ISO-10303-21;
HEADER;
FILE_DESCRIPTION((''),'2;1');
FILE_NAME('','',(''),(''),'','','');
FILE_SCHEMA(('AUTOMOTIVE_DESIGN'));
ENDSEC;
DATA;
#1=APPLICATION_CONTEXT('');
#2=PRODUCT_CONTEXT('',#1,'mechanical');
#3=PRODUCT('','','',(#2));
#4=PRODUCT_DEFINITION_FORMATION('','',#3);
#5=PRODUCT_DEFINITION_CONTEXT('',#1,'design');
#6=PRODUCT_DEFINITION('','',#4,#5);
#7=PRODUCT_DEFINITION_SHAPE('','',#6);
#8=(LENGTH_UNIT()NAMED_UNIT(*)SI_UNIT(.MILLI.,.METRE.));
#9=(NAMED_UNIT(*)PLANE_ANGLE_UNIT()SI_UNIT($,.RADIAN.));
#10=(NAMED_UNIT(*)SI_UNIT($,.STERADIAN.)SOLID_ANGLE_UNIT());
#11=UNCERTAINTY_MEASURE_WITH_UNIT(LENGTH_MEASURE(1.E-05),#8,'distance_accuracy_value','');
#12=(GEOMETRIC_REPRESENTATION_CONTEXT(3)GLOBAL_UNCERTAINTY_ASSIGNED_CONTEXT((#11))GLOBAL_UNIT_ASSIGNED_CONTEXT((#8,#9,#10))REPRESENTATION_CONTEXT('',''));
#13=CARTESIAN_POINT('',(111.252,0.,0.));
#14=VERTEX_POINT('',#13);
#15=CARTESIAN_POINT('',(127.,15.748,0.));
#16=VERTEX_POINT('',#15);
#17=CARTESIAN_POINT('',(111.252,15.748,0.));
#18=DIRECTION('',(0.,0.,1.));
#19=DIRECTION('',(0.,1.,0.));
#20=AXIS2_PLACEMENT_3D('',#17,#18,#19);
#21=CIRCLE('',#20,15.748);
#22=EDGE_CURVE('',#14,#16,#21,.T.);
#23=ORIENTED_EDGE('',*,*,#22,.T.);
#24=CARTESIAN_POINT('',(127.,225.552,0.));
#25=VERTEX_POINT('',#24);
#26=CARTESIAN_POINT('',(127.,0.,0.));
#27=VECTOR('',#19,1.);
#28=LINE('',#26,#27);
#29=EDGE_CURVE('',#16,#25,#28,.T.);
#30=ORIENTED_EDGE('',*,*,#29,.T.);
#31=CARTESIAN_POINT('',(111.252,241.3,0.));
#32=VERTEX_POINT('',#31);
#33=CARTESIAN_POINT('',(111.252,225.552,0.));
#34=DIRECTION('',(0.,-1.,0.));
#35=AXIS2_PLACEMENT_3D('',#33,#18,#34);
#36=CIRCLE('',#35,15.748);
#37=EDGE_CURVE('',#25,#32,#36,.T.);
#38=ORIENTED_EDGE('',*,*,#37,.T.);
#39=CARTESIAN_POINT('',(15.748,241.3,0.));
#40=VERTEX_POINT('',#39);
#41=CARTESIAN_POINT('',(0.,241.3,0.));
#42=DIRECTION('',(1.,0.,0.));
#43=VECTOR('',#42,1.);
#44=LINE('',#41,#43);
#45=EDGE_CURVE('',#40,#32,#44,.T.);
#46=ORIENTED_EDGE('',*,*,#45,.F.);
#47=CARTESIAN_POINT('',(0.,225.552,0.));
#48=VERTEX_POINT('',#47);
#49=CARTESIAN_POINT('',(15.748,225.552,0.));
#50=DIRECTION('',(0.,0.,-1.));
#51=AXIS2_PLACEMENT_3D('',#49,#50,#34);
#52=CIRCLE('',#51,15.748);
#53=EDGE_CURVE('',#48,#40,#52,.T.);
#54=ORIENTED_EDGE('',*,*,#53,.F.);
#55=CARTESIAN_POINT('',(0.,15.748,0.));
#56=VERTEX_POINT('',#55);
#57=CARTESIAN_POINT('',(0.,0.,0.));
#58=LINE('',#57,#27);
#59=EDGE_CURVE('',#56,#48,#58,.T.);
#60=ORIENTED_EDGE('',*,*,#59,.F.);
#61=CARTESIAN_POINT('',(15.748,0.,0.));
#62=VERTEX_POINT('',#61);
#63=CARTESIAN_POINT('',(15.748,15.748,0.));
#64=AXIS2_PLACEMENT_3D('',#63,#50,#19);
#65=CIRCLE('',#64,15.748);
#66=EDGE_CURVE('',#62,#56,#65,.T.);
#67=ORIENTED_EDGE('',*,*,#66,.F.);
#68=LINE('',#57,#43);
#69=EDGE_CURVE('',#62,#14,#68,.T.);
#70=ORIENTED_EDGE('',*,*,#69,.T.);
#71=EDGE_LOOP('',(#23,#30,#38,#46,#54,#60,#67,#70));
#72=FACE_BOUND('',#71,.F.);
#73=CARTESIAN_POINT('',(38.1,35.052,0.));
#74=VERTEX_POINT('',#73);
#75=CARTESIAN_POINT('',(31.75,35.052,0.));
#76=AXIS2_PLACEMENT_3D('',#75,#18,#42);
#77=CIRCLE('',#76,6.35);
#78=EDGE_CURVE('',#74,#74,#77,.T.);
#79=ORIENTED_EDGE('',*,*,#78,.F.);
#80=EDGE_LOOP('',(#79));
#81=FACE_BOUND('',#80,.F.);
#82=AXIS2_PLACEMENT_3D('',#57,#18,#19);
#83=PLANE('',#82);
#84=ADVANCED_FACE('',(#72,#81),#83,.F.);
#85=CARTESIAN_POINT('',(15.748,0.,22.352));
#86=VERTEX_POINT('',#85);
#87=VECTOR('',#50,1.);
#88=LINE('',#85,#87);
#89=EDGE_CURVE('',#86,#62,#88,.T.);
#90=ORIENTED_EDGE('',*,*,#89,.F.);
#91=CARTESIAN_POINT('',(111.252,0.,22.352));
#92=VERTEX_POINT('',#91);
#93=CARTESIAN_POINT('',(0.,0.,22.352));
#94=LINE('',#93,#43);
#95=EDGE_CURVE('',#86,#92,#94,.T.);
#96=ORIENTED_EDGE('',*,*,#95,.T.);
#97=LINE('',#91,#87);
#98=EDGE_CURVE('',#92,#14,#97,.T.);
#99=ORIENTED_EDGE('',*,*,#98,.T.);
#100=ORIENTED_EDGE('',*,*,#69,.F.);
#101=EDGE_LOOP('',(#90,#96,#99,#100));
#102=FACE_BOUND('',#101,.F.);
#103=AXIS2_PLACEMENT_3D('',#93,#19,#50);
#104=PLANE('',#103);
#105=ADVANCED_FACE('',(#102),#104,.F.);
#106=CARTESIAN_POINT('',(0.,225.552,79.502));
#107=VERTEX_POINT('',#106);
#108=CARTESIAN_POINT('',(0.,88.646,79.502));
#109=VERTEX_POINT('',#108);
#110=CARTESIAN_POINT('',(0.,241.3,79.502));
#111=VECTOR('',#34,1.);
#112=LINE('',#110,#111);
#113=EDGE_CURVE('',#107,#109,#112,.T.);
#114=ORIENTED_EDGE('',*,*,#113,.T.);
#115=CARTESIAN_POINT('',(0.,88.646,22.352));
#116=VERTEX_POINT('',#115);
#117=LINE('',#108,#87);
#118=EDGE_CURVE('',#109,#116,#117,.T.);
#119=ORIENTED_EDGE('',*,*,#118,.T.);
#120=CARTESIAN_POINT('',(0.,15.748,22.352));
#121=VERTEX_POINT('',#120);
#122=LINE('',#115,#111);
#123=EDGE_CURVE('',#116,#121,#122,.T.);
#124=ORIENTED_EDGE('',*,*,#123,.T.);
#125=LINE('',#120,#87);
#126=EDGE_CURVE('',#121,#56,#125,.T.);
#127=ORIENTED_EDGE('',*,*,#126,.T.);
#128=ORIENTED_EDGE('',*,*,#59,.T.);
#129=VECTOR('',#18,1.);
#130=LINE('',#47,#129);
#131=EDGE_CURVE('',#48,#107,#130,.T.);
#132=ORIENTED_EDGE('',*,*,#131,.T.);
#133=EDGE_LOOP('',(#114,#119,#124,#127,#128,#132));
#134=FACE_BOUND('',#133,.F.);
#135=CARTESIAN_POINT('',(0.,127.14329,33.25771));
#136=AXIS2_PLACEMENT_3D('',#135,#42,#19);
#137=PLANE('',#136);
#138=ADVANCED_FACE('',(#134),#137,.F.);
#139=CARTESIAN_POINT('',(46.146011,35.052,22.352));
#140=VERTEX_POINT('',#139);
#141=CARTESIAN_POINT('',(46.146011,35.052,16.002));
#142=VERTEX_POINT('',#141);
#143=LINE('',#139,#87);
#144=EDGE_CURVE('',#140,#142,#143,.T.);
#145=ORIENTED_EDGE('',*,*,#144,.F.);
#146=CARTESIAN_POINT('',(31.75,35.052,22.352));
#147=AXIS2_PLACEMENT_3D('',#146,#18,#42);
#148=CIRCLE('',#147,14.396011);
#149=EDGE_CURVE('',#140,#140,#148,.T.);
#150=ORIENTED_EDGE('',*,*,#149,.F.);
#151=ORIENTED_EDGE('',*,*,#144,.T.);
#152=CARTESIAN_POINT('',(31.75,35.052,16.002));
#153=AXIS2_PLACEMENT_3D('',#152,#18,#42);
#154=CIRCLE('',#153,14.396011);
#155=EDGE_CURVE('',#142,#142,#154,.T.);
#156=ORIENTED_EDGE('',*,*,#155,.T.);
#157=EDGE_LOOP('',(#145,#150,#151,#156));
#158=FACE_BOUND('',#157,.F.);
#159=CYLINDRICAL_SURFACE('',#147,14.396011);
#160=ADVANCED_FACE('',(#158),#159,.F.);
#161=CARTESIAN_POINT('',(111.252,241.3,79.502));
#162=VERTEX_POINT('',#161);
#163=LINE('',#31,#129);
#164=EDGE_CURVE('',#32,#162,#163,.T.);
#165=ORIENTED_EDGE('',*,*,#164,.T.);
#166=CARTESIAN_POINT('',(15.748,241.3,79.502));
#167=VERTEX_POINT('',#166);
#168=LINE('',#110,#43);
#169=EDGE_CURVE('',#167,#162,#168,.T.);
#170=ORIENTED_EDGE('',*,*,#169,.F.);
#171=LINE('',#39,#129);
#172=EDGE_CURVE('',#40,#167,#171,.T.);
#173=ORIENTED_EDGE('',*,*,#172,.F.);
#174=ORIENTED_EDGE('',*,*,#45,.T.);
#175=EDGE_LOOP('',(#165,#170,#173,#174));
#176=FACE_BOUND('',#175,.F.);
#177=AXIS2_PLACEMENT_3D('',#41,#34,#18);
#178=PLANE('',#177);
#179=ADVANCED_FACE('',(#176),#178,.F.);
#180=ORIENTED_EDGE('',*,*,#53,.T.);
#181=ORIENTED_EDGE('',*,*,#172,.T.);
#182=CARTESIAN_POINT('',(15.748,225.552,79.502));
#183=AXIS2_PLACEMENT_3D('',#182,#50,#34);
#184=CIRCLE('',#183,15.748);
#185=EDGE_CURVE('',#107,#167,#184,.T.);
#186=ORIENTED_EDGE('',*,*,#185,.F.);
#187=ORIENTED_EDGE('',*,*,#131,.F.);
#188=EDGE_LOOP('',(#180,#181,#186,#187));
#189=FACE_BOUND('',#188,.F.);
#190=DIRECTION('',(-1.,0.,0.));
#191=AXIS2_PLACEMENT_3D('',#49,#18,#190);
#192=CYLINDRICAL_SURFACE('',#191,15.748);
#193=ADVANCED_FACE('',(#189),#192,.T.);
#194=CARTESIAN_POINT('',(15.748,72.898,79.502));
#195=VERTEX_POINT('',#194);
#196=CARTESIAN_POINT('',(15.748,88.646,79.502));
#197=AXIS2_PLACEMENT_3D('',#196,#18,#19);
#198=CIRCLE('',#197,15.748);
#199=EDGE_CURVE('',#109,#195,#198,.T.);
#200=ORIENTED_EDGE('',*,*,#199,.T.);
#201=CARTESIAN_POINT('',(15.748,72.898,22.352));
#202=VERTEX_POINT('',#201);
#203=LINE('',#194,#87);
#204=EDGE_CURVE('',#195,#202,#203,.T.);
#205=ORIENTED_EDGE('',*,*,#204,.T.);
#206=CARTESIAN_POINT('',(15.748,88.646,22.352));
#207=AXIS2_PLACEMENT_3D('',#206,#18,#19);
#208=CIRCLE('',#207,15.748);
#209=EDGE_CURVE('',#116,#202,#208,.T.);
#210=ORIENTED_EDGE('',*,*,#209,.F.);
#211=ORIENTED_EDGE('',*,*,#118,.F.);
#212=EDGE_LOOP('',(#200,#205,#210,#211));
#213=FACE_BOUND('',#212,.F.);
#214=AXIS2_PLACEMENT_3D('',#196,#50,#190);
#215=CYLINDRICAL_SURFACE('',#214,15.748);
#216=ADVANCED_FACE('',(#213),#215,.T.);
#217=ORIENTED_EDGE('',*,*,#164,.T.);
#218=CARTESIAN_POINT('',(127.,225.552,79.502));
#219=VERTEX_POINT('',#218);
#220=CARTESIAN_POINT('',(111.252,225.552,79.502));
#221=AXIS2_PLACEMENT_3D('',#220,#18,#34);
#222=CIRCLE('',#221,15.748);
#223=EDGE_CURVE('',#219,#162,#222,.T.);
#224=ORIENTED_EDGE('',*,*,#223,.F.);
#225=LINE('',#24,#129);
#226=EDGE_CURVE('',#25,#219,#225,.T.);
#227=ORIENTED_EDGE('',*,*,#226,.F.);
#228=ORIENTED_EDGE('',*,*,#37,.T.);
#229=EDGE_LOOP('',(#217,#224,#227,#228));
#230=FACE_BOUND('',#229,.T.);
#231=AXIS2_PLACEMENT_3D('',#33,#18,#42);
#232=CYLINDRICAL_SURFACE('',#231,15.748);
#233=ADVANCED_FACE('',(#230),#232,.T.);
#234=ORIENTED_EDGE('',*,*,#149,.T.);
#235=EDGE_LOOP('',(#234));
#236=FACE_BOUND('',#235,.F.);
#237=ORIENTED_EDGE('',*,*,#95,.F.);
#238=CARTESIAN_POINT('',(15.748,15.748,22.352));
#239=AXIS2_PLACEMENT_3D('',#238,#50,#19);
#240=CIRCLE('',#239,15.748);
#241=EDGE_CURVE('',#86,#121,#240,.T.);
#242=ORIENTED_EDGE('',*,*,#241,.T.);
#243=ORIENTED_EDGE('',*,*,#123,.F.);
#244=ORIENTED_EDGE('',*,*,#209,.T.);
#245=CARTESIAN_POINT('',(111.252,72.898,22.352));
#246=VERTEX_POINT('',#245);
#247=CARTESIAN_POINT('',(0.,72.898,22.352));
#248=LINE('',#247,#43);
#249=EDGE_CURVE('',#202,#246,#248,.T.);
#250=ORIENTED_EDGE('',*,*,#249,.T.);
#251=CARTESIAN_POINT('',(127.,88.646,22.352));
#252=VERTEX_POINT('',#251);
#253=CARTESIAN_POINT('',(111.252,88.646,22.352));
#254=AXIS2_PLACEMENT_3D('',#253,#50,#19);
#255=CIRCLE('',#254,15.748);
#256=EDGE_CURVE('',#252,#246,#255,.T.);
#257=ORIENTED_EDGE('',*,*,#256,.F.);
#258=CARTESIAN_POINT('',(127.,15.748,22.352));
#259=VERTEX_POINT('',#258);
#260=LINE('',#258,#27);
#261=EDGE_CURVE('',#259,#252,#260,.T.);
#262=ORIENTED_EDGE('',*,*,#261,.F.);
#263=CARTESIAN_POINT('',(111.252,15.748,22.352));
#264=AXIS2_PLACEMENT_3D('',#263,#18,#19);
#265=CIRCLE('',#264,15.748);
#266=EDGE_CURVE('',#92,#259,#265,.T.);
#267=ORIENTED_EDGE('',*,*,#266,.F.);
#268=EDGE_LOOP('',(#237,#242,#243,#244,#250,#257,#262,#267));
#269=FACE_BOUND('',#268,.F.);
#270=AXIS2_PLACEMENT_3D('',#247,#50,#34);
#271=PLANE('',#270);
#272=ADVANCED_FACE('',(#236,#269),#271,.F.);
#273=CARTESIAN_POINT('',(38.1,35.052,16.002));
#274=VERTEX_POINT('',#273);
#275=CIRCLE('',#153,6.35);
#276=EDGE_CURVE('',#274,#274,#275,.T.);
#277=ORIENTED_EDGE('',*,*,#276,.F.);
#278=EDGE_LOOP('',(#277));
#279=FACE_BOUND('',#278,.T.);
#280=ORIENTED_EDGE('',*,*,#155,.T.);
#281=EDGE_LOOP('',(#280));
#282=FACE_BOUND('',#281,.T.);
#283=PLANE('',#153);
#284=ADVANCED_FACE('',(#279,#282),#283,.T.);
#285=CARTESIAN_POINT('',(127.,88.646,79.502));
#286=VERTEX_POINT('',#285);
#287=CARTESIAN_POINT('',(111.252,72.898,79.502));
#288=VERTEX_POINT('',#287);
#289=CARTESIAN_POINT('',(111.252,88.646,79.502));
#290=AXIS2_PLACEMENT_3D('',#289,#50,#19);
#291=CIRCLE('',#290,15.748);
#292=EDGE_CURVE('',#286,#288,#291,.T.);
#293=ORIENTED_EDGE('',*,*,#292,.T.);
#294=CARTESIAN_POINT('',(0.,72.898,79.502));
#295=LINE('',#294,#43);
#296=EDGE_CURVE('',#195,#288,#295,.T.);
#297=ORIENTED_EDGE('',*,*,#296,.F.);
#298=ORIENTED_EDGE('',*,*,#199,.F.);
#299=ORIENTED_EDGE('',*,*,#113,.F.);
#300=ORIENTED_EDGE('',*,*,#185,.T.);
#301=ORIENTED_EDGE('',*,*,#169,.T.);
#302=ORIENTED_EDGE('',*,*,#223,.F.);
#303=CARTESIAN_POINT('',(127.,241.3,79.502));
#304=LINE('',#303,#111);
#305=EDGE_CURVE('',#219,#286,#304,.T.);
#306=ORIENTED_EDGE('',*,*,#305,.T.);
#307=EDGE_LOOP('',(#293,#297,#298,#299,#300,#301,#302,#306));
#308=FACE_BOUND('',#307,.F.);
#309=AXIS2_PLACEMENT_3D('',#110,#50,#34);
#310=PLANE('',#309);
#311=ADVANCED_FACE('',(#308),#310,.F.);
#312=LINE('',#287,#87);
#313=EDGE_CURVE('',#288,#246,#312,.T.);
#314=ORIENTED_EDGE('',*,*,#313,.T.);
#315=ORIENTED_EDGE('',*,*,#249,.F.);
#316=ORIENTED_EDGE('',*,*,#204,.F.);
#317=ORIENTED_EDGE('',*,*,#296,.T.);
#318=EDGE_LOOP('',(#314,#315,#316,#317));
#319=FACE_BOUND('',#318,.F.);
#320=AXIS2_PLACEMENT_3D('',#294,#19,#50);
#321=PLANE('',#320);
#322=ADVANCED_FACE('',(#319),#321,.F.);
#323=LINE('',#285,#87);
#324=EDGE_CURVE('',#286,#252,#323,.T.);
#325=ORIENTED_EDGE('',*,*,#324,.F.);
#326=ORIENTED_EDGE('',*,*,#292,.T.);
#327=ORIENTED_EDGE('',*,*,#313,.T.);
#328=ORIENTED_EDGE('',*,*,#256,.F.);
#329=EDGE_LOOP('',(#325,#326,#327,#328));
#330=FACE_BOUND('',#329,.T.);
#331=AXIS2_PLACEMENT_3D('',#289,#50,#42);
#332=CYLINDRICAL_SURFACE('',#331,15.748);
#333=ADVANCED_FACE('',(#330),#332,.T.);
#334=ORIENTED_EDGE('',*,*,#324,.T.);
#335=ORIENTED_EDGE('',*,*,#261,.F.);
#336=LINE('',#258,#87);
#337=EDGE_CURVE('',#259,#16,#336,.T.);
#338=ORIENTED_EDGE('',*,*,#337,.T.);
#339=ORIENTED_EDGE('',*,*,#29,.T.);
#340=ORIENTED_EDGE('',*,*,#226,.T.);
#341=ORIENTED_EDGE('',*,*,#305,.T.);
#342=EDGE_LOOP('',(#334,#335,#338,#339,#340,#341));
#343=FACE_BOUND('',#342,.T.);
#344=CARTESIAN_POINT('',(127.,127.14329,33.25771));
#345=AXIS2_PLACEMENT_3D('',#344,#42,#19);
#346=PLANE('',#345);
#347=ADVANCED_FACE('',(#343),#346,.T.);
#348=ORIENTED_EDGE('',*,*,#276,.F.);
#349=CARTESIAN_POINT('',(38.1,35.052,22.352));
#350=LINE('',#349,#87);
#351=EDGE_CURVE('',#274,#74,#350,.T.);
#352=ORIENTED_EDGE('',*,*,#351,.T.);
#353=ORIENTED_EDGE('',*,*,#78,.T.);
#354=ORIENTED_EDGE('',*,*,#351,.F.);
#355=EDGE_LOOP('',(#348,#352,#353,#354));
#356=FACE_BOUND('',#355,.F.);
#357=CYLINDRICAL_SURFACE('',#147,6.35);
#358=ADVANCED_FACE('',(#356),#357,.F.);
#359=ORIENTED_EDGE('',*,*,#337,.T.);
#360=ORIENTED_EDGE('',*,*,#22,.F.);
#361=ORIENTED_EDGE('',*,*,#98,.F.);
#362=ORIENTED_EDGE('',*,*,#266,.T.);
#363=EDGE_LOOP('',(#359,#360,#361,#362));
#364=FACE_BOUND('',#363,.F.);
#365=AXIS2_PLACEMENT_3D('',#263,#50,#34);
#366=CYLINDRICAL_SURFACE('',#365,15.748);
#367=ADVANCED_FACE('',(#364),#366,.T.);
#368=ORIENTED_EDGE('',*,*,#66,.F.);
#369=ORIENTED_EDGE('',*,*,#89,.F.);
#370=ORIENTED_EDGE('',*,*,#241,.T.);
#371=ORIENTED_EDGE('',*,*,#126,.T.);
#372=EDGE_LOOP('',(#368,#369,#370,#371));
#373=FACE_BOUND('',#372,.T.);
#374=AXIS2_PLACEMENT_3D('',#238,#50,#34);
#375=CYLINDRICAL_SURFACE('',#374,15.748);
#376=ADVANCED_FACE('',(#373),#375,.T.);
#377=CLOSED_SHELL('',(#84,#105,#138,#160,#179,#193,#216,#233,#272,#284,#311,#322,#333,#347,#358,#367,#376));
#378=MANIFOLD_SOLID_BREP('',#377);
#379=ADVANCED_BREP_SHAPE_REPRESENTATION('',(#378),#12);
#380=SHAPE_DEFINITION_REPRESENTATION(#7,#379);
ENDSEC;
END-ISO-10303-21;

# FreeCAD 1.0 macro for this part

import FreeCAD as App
import Part
import Sketcher
from FreeCAD import Vector
Q = App.Units.Quantity


def edges_at(feature, points):
    """Names of the edges that pass closest to the given points."""
    edges = feature.Shape.Edges
    near = lambda p: min(range(len(edges)), key=lambda i: edges[i].distToShape(Part.Vertex(*p))[0])
    return sorted({f"Edge{near(p) + 1}" for p in points})


def add_polygon(sketch, points):
    """Adds a closed chain of lines whose ends are joined by coincident constraints."""
    first, n = sketch.GeometryCount, len(points)
    for a, b in zip(points, points[1:] + points[:1]):
        sketch.addGeometry(Part.LineSegment(App.Vector(*a, 0), App.Vector(*b, 0)), False)
    for i in range(n):
        sketch.addConstraint(Sketcher.Constraint("Coincident", first + i, 2, first + (i + 1) % n, 1))

doc = App.newDocument("Part")
body = doc.addObject("PartDesign::Body", "Body")

# Sketch on YZ plane
sketch1 = body.newObject("Sketcher::SketchObject", "Sketch")
sketch1.AttachmentSupport = (doc.getObject("YZ_Plane"), [""])
sketch1.MapMode = "FlatFace"
add_polygon(sketch1, [(0, 22), (0, 0), (241, 0), (241, 80), (73, 80), (73, 22)])  # lines 0-5
sketch1.addConstraint(Sketcher.Constraint("Vertical", 0))
sketch1.addConstraint(Sketcher.Constraint("Horizontal", 1))
sketch1.addConstraint(Sketcher.Constraint("Vertical", 2))
sketch1.addConstraint(Sketcher.Constraint("Horizontal", 3))
sketch1.addConstraint(Sketcher.Constraint("Vertical", 4))
sketch1.addConstraint(Sketcher.Constraint("Horizontal", 5))
sketch1.addConstraint(Sketcher.Constraint("Coincident", 0, 2, -1, 1))
sketch1.addConstraint(Sketcher.Constraint("DistanceX", 1, 1, 1, 2, Q("9.5 in")))
sketch1.addConstraint(Sketcher.Constraint("DistanceX", 3, 2, 3, 1, Q("6.63 in")))
sketch1.addConstraint(Sketcher.Constraint("DistanceY", 0, 2, 0, 1, Q("0.88 in")))
sketch1.addConstraint(Sketcher.Constraint("DistanceY", 2, 1, 2, 2, Q("3.13 in")))
pad1 = body.newObject("PartDesign::Pad", "Pad")
pad1.Profile = sketch1
pad1.Length = Q("5 in")

# Sketch on XY plane
sketch2 = body.newObject("Sketcher::SketchObject", "Sketch001")
sketch2.AttachmentSupport = (doc.getObject("XY_Plane"), [""])
sketch2.MapMode = "FlatFace"
sketch2.AttachmentOffset = App.Placement(Vector(0, 0, 0.88 * 25.4), App.Rotation())
sketch2.addGeometry(Part.Circle(Vector(32, 35, 0), Vector(0, 0, 1), 6), False)
sketch2.addConstraint(Sketcher.Constraint("Diameter", 0, Q("0.5 in")))
sketch2.addConstraint(Sketcher.Constraint("DistanceX", -1, 1, 0, 3, Q("1.25 in")))
sketch2.addConstraint(Sketcher.Constraint("DistanceY", -1, 1, 0, 3, Q("1.38 in")))
pocket1 = body.newObject("PartDesign::Pocket", "Pocket")
pocket1.Profile = sketch2
pocket1.Type = "ThroughAll"

# Sketch on XY plane
sketch3 = body.newObject("Sketcher::SketchObject", "Sketch002")
sketch3.AttachmentSupport = (doc.getObject("XY_Plane"), [""])
sketch3.MapMode = "FlatFace"
sketch3.AttachmentOffset = App.Placement(Vector(0, 0, 0.88 * 25.4), App.Rotation())
sketch3.addGeometry(Part.Circle(Vector(32, 35, 0), Vector(0, 0, 1), 14), False)
sketch3.addConstraint(Sketcher.Constraint("DistanceX", -1, 1, 0, 3, Q("1.25 in")))
sketch3.addConstraint(Sketcher.Constraint("DistanceY", -1, 1, 0, 3, Q("1.38 in")))
sketch3.addConstraint(Sketcher.Constraint("Diameter", 0, Q("28.792022 mm")))
pocket2 = body.newObject("PartDesign::Pocket", "Pocket001")
pocket2.Profile = sketch3
pocket2.Length = Q("0.25 in")
doc.recompute()

fillet = body.newObject("PartDesign::Fillet", "Fillet")
fillet.Base = (pocket2, edges_at(pocket2, [
    (127, 72.898, 50.927),
    (127, 0, 11.176),
    (0, 0, 11.176),
    (0, 72.898, 50.927),
    (0, 241.3, 39.751),
    (127, 241.3, 39.751),
]))
fillet.Radius = Q("0.62 in")

doc.recompute()
